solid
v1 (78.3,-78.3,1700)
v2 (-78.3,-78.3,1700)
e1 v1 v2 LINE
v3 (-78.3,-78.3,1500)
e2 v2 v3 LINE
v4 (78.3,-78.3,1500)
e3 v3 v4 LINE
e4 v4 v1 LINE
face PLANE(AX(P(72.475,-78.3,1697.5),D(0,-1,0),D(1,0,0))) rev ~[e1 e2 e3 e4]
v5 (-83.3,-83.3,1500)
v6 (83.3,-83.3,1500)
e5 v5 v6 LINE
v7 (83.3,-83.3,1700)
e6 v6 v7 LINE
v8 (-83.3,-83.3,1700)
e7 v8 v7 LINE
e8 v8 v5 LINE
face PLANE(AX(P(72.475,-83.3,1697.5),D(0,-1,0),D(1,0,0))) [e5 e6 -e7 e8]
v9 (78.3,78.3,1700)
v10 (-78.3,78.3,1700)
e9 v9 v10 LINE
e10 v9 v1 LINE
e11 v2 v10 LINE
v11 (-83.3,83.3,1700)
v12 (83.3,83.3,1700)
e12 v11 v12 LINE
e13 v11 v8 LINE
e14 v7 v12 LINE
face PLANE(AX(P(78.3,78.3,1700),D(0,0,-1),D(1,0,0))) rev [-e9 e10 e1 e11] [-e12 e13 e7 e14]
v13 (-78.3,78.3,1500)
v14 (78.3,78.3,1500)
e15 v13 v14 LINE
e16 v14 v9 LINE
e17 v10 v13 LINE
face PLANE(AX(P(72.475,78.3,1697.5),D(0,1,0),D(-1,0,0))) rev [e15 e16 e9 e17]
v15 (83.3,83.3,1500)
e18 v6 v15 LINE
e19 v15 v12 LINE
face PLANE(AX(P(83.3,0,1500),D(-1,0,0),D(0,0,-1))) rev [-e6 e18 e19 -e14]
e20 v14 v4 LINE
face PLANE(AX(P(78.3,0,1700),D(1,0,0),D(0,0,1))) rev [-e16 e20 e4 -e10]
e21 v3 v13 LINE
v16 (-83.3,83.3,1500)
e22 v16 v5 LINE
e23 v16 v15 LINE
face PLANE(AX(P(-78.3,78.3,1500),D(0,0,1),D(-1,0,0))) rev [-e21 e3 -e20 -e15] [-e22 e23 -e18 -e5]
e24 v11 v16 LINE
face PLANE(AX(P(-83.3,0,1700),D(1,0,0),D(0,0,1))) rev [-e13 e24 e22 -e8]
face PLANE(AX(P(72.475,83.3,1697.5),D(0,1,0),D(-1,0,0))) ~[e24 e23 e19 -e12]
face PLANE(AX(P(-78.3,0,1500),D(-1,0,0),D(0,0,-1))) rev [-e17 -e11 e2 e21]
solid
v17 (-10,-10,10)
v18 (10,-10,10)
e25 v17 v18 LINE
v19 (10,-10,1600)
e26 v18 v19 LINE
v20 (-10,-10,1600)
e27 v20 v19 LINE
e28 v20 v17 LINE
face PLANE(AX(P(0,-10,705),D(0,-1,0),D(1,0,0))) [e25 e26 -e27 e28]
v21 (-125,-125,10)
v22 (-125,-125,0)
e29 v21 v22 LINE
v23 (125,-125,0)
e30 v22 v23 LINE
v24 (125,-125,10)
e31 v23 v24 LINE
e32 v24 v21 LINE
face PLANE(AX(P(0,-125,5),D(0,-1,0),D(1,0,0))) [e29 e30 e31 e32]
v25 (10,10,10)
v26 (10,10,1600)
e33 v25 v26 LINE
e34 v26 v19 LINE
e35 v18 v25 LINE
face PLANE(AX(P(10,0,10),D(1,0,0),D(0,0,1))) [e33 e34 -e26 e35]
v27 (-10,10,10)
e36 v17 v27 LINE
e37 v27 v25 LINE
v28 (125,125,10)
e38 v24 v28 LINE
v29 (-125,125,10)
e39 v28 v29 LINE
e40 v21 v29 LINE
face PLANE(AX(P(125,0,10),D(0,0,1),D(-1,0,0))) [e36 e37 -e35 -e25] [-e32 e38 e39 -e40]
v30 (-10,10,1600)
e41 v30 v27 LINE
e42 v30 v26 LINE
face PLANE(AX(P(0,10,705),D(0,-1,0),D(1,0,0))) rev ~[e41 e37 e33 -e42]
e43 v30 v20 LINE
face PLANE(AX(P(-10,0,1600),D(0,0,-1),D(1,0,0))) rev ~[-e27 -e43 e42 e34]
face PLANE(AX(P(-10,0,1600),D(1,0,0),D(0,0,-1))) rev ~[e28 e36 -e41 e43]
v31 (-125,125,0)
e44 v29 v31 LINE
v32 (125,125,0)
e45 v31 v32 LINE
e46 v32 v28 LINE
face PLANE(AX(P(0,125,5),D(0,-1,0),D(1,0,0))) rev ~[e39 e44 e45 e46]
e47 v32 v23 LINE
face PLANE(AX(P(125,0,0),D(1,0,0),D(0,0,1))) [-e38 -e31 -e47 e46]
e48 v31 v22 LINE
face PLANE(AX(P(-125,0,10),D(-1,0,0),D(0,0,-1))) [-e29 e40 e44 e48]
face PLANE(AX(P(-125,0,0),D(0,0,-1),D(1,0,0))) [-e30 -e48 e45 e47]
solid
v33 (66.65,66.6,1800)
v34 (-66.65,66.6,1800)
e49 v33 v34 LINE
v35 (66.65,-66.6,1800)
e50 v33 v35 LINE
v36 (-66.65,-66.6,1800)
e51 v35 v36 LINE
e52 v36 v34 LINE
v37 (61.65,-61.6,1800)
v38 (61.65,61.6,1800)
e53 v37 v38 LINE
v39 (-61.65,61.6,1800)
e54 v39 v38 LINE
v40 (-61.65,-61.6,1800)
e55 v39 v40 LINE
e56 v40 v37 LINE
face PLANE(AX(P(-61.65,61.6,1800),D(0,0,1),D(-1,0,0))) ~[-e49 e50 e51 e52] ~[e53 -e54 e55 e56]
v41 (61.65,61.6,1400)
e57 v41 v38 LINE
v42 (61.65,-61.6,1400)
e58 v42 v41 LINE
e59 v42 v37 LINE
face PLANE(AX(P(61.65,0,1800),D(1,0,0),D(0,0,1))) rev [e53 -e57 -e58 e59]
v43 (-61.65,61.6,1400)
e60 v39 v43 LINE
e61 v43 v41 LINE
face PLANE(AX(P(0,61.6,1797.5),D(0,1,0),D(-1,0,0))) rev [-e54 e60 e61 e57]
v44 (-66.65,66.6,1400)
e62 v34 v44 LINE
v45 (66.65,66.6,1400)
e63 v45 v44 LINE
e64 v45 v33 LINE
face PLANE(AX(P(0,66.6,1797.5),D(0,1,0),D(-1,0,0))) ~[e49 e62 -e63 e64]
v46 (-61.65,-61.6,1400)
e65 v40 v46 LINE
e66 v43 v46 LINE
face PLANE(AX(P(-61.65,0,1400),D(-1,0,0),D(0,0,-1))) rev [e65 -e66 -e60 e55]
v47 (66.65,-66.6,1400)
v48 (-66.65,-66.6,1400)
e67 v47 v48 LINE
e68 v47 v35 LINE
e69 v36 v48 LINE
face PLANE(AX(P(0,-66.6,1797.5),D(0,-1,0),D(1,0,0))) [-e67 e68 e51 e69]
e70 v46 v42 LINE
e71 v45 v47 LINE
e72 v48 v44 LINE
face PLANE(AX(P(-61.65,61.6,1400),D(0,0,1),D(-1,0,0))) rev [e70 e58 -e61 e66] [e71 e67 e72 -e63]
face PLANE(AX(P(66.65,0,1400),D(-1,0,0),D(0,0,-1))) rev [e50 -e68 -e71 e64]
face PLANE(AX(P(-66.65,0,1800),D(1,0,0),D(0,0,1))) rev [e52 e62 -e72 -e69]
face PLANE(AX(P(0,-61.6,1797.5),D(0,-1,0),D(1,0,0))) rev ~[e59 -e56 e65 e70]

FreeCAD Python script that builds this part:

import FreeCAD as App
import Part
import Sketcher
Q = App.Units.Quantity


def add_polygon(sketch, points):
    """Adds a closed chain of lines whose ends are joined by coincident constraints."""
    first, n = sketch.GeometryCount, len(points)
    for a, b in zip(points, points[1:] + points[:1]):
        sketch.addGeometry(Part.LineSegment(App.Vector(*a, 0), App.Vector(*b, 0)), False)
    for i in range(n):
        sketch.addConstraint(Sketcher.Constraint("Coincident", first + i, 2, first + (i + 1) % n, 1))

doc = App.newDocument("Part")
body = doc.addObject("PartDesign::Body", "Body")

sketch1 = doc.addObject("Sketcher::SketchObject", "Sketch")
body.addObject(sketch1)
sketch1.AttachmentSupport = (doc.XZ_Plane, [""])
sketch1.MapMode = "FlatFace"
add_polygon(sketch1, [(-125, 10), (-125, 0), (125, 0), (125, 10)])
sketch1.addConstraint(Sketcher.Constraint("Vertical", 0))
sketch1.addConstraint(Sketcher.Constraint("Horizontal", 1))
sketch1.addConstraint(Sketcher.Constraint("Vertical", 2))
sketch1.addConstraint(Sketcher.Constraint("Horizontal", 3))
sketch1.addConstraint(Sketcher.Constraint("Symmetric", 0, 2, 1, 2, -1, 1))
sketch1.addConstraint(Sketcher.Constraint("DistanceX", 1, 1, 1, 2, Q("250 mm")))
sketch1.addConstraint(Sketcher.Constraint("DistanceY", 0, 2, 0, 1, Q("10 mm")))
pad1 = doc.addObject("PartDesign::Pad", "Pad")
body.addObject(pad1)
pad1.Profile = sketch1
pad1.Type = "TwoLengths"
pad1.Length = 125
pad1.Length2 = 125

sketch2 = doc.addObject("Sketcher::SketchObject", "Sketch001")
body.addObject(sketch2)
sketch2.AttachmentSupport = (doc.XZ_Plane, [""])
sketch2.MapMode = "FlatFace"
add_polygon(sketch2, [(-10, 10), (10, 10), (10, 1600), (-10, 1600)])
sketch2.addConstraint(Sketcher.Constraint("Horizontal", 0))
sketch2.addConstraint(Sketcher.Constraint("Vertical", 1))
sketch2.addConstraint(Sketcher.Constraint("Horizontal", 2))
sketch2.addConstraint(Sketcher.Constraint("Vertical", 3))
sketch2.addConstraint(Sketcher.Constraint("DistanceX", 0, 1, 0, 2, Q("20 mm")))
sketch2.addConstraint(Sketcher.Constraint("DistanceY", 1, 1, 1, 2, Q("1590 mm")))
sketch2.addConstraint(Sketcher.Constraint("DistanceX", -1, 1, 0, 2, Q("10 mm")))
sketch2.addConstraint(Sketcher.Constraint("DistanceY", -1, 1, 0, 2, Q("10 mm")))
pad2 = doc.addObject("PartDesign::Pad", "Pad001")
body.addObject(pad2)
pad2.Profile = sketch2
pad2.Type = "TwoLengths"
pad2.Length = 10
pad2.Length2 = 10
body2 = doc.addObject("PartDesign::Body", "Body001")

sketch3 = doc.addObject("Sketcher::SketchObject", "Sketch002")
body2.addObject(sketch3)
sketch3.AttachmentSupport = (doc.getObject("XZ_Plane001"), [""])
sketch3.MapMode = "FlatFace"
add_polygon(sketch3, [(-78.3, 1700), (-83.3, 1700), (-83.3, 1500), (-78.3, 1500)])
sketch3.addConstraint(Sketcher.Constraint("Horizontal", 0))
sketch3.addConstraint(Sketcher.Constraint("Vertical", 1))
sketch3.addConstraint(Sketcher.Constraint("Horizontal", 2))
sketch3.addConstraint(Sketcher.Constraint("Vertical", 3))
sketch3.addConstraint(Sketcher.Constraint("DistanceX", 0, 2, 0, 1, Q("5 mm")))
sketch3.addConstraint(Sketcher.Constraint("DistanceY", 1, 2, 1, 1, Q("200 mm")))
sketch3.addConstraint(Sketcher.Constraint("DistanceY", -1, 1, 0, 2, Q("1700 mm")))
sketch3.addConstraint(Sketcher.Constraint("DistanceX", 0, 2, -1, 1, Q("83.3 mm")))
pad3 = doc.addObject("PartDesign::Pad", "Pad002")
body2.addObject(pad3)
pad3.Profile = sketch3
pad3.Length = 83.3
body3 = doc.addObject("PartDesign::Body", "Body002")

sketch4 = doc.addObject("Sketcher::SketchObject", "Sketch003")
body3.addObject(sketch4)
sketch4.AttachmentSupport = (doc.getObject("XZ_Plane002"), [""])
sketch4.MapMode = "FlatFace"
add_polygon(sketch4, [(83.3, 1700), (78.3, 1700), (78.3, 1500), (83.3, 1500)])
sketch4.addConstraint(Sketcher.Constraint("Horizontal", 0))
sketch4.addConstraint(Sketcher.Constraint("Vertical", 1))
sketch4.addConstraint(Sketcher.Constraint("Horizontal", 2))
sketch4.addConstraint(Sketcher.Constraint("Vertical", 3))
sketch4.addConstraint(Sketcher.Constraint("DistanceX", 0, 2, 0, 1, Q("5 mm")))
sketch4.addConstraint(Sketcher.Constraint("DistanceY", 1, 2, 1, 1, Q("200 mm")))
sketch4.addConstraint(Sketcher.Constraint("DistanceY", -1, 1, 0, 2, Q("1700 mm")))
sketch4.addConstraint(Sketcher.Constraint("DistanceX", -1, 1, 0, 2, Q("78.3 mm")))
pad4 = doc.addObject("PartDesign::Pad", "Pad003")
body3.addObject(pad4)
pad4.Profile = sketch4
pad4.Length = 83.3
body2.AllowCompound = True
doc.recompute()

boolean = doc.addObject("PartDesign::Boolean", "Boolean")
body2.addObject(boolean)
boolean.Type = "Fuse"
boolean.addObjects([body3])

sketch5 = doc.addObject("Sketcher::SketchObject", "Sketch004")
body2.addObject(sketch5)
sketch5.AttachmentSupport = (doc.getObject("XZ_Plane001"), [""])
sketch5.MapMode = "FlatFace"
sketch5.AttachmentOffset = App.Placement(App.Vector(0, 0, 78.3), App.Rotation())
add_polygon(sketch5, [(78.3, 1700), (-78.3, 1700), (-78.3, 1500), (78.3, 1500)])
sketch5.addConstraint(Sketcher.Constraint("Horizontal", 0))
sketch5.addConstraint(Sketcher.Constraint("Vertical", 1))
sketch5.addConstraint(Sketcher.Constraint("Horizontal", 2))
sketch5.addConstraint(Sketcher.Constraint("Vertical", 3))
sketch5.addConstraint(Sketcher.Constraint("DistanceY", 1, 2, 1, 1, Q("200 mm")))
sketch5.addConstraint(Sketcher.Constraint("DistanceX", 0, 2, 0, 1, Q("156.6 mm")))
sketch5.addConstraint(Sketcher.Constraint("DistanceY", -1, 1, 0, 2, Q("1700 mm")))
sketch5.addConstraint(Sketcher.Constraint("DistanceX", 0, 2, -1, 1, Q("78.3 mm")))
pad5 = doc.addObject("PartDesign::Pad", "Pad004")
body2.addObject(pad5)
pad5.Profile = sketch5
pad5.Length = 5
body4 = doc.addObject("PartDesign::Body", "Body003")

sketch6 = doc.addObject("Sketcher::SketchObject", "Sketch005")
body4.addObject(sketch6)
sketch6.AttachmentSupport = (doc.getObject("XZ_Plane003"), [""])
sketch6.MapMode = "FlatFace"
add_polygon(sketch6, [(66.65, 1800), (61.65, 1800), (61.65, 1400), (66.65, 1400)])
sketch6.addConstraint(Sketcher.Constraint("Horizontal", 0))
sketch6.addConstraint(Sketcher.Constraint("Vertical", 1))
sketch6.addConstraint(Sketcher.Constraint("Horizontal", 2))
sketch6.addConstraint(Sketcher.Constraint("Vertical", 3))
sketch6.addConstraint(Sketcher.Constraint("DistanceX", 0, 2, 0, 1, Q("5 mm")))
sketch6.addConstraint(Sketcher.Constraint("DistanceY", 1, 2, 1, 1, Q("400 mm")))
sketch6.addConstraint(Sketcher.Constraint("DistanceY", -1, 1, 0, 2, Q("1800 mm")))
sketch6.addConstraint(Sketcher.Constraint("DistanceX", -1, 1, 0, 2, Q("61.65 mm")))
pad6 = doc.addObject("PartDesign::Pad", "Pad005")
body4.addObject(pad6)
pad6.Profile = sketch6
pad6.Length = 66.6
body5 = doc.addObject("PartDesign::Body", "Body004")

sketch7 = doc.addObject("Sketcher::SketchObject", "Sketch006")
body5.addObject(sketch7)
sketch7.AttachmentSupport = (doc.getObject("XZ_Plane004"), [""])
sketch7.MapMode = "FlatFace"
add_polygon(sketch7, [(-66.65, 1400), (-61.65, 1400), (-61.65, 1800), (-66.65, 1800)])
sketch7.addConstraint(Sketcher.Constraint("Horizontal", 0))
sketch7.addConstraint(Sketcher.Constraint("Vertical", 1))
sketch7.addConstraint(Sketcher.Constraint("Horizontal", 2))
sketch7.addConstraint(Sketcher.Constraint("Vertical", 3))
sketch7.addConstraint(Sketcher.Constraint("DistanceX", 0, 1, 0, 2, Q("5 mm")))
sketch7.addConstraint(Sketcher.Constraint("DistanceY", 1, 1, 1, 2, Q("400 mm")))
sketch7.addConstraint(Sketcher.Constraint("DistanceY", -1, 1, 0, 2, Q("1400 mm")))
sketch7.addConstraint(Sketcher.Constraint("DistanceX", 0, 2, -1, 1, Q("61.65 mm")))
pad7 = doc.addObject("PartDesign::Pad", "Pad006")
body5.addObject(pad7)
pad7.Profile = sketch7
pad7.Length = 66.6
body4.AllowCompound = True
doc.recompute()

boolean2 = doc.addObject("PartDesign::Boolean", "Boolean001")
body4.addObject(boolean2)
boolean2.Type = "Fuse"
boolean2.addObjects([body5])

sketch8 = doc.addObject("Sketcher::SketchObject", "Sketch007")
body4.addObject(sketch8)
sketch8.AttachmentSupport = (doc.getObject("XZ_Plane003"), [""])
sketch8.MapMode = "FlatFace"
sketch8.AttachmentOffset = App.Placement(App.Vector(0, 0, 61.6), App.Rotation())
add_polygon(sketch8, [(-61.65, 1800), (-61.65, 1400), (61.65, 1400), (61.65, 1800)])
sketch8.addConstraint(Sketcher.Constraint("Vertical", 0))
sketch8.addConstraint(Sketcher.Constraint("Horizontal", 1))
sketch8.addConstraint(Sketcher.Constraint("Vertical", 2))
sketch8.addConstraint(Sketcher.Constraint("Horizontal", 3))
sketch8.addConstraint(Sketcher.Constraint("DistanceY", 0, 2, 0, 1, Q("400 mm")))
sketch8.addConstraint(Sketcher.Constraint("DistanceX", 1, 1, 1, 2, Q("123.3 mm")))
sketch8.addConstraint(Sketcher.Constraint("DistanceY", -1, 1, 0, 2, Q("1400 mm")))
sketch8.addConstraint(Sketcher.Constraint("DistanceX", 0, 2, -1, 1, Q("61.65 mm")))
pad8 = doc.addObject("PartDesign::Pad", "Pad007")
body4.addObject(pad8)
pad8.Profile = sketch8
pad8.Length = 5
body6 = doc.addObject("PartDesign::Body", "Body005")
body6.AllowCompound = True
doc.recompute()

body6.BaseFeature = body2
doc.recompute()

body7 = doc.addObject("PartDesign::Body", "Body006")
body7.BaseFeature = body4
boolean3 = doc.addObject("PartDesign::Boolean", "Boolean002")
body6.addObject(boolean3)
boolean3.Type = "Fuse"
boolean3.addObjects([body7])
doc.recompute()

mirroring = doc.addObject("Part::Mirroring", "Mirroring")
mirroring.Source = body4
mirroring.Base = App.Vector(0, 0, 0)
mirroring.Normal = App.Vector(0, -1, 0)
body8 = doc.addObject("PartDesign::Body", "Body007")
body8.BaseFeature = mirroring
boolean4 = doc.addObject("PartDesign::Boolean", "Boolean003")
body6.addObject(boolean4)
boolean4.Type = "Fuse"
boolean4.addObjects([body8])
doc.recompute()

mirroring2 = doc.addObject("Part::Mirroring", "Mirroring001")
mirroring2.Source = body2
mirroring2.Base = App.Vector(0, 0, 0)
mirroring2.Normal = App.Vector(0, -1, 0)
body9 = doc.addObject("PartDesign::Body", "Body008")
body9.BaseFeature = mirroring2
boolean5 = doc.addObject("PartDesign::Boolean", "Boolean004")
body6.addObject(boolean5)
boolean5.Type = "Fuse"
boolean5.addObjects([body9])
doc.recompute()
mirroring.Visibility = False
mirroring2.Visibility = False

doc.recompute()
